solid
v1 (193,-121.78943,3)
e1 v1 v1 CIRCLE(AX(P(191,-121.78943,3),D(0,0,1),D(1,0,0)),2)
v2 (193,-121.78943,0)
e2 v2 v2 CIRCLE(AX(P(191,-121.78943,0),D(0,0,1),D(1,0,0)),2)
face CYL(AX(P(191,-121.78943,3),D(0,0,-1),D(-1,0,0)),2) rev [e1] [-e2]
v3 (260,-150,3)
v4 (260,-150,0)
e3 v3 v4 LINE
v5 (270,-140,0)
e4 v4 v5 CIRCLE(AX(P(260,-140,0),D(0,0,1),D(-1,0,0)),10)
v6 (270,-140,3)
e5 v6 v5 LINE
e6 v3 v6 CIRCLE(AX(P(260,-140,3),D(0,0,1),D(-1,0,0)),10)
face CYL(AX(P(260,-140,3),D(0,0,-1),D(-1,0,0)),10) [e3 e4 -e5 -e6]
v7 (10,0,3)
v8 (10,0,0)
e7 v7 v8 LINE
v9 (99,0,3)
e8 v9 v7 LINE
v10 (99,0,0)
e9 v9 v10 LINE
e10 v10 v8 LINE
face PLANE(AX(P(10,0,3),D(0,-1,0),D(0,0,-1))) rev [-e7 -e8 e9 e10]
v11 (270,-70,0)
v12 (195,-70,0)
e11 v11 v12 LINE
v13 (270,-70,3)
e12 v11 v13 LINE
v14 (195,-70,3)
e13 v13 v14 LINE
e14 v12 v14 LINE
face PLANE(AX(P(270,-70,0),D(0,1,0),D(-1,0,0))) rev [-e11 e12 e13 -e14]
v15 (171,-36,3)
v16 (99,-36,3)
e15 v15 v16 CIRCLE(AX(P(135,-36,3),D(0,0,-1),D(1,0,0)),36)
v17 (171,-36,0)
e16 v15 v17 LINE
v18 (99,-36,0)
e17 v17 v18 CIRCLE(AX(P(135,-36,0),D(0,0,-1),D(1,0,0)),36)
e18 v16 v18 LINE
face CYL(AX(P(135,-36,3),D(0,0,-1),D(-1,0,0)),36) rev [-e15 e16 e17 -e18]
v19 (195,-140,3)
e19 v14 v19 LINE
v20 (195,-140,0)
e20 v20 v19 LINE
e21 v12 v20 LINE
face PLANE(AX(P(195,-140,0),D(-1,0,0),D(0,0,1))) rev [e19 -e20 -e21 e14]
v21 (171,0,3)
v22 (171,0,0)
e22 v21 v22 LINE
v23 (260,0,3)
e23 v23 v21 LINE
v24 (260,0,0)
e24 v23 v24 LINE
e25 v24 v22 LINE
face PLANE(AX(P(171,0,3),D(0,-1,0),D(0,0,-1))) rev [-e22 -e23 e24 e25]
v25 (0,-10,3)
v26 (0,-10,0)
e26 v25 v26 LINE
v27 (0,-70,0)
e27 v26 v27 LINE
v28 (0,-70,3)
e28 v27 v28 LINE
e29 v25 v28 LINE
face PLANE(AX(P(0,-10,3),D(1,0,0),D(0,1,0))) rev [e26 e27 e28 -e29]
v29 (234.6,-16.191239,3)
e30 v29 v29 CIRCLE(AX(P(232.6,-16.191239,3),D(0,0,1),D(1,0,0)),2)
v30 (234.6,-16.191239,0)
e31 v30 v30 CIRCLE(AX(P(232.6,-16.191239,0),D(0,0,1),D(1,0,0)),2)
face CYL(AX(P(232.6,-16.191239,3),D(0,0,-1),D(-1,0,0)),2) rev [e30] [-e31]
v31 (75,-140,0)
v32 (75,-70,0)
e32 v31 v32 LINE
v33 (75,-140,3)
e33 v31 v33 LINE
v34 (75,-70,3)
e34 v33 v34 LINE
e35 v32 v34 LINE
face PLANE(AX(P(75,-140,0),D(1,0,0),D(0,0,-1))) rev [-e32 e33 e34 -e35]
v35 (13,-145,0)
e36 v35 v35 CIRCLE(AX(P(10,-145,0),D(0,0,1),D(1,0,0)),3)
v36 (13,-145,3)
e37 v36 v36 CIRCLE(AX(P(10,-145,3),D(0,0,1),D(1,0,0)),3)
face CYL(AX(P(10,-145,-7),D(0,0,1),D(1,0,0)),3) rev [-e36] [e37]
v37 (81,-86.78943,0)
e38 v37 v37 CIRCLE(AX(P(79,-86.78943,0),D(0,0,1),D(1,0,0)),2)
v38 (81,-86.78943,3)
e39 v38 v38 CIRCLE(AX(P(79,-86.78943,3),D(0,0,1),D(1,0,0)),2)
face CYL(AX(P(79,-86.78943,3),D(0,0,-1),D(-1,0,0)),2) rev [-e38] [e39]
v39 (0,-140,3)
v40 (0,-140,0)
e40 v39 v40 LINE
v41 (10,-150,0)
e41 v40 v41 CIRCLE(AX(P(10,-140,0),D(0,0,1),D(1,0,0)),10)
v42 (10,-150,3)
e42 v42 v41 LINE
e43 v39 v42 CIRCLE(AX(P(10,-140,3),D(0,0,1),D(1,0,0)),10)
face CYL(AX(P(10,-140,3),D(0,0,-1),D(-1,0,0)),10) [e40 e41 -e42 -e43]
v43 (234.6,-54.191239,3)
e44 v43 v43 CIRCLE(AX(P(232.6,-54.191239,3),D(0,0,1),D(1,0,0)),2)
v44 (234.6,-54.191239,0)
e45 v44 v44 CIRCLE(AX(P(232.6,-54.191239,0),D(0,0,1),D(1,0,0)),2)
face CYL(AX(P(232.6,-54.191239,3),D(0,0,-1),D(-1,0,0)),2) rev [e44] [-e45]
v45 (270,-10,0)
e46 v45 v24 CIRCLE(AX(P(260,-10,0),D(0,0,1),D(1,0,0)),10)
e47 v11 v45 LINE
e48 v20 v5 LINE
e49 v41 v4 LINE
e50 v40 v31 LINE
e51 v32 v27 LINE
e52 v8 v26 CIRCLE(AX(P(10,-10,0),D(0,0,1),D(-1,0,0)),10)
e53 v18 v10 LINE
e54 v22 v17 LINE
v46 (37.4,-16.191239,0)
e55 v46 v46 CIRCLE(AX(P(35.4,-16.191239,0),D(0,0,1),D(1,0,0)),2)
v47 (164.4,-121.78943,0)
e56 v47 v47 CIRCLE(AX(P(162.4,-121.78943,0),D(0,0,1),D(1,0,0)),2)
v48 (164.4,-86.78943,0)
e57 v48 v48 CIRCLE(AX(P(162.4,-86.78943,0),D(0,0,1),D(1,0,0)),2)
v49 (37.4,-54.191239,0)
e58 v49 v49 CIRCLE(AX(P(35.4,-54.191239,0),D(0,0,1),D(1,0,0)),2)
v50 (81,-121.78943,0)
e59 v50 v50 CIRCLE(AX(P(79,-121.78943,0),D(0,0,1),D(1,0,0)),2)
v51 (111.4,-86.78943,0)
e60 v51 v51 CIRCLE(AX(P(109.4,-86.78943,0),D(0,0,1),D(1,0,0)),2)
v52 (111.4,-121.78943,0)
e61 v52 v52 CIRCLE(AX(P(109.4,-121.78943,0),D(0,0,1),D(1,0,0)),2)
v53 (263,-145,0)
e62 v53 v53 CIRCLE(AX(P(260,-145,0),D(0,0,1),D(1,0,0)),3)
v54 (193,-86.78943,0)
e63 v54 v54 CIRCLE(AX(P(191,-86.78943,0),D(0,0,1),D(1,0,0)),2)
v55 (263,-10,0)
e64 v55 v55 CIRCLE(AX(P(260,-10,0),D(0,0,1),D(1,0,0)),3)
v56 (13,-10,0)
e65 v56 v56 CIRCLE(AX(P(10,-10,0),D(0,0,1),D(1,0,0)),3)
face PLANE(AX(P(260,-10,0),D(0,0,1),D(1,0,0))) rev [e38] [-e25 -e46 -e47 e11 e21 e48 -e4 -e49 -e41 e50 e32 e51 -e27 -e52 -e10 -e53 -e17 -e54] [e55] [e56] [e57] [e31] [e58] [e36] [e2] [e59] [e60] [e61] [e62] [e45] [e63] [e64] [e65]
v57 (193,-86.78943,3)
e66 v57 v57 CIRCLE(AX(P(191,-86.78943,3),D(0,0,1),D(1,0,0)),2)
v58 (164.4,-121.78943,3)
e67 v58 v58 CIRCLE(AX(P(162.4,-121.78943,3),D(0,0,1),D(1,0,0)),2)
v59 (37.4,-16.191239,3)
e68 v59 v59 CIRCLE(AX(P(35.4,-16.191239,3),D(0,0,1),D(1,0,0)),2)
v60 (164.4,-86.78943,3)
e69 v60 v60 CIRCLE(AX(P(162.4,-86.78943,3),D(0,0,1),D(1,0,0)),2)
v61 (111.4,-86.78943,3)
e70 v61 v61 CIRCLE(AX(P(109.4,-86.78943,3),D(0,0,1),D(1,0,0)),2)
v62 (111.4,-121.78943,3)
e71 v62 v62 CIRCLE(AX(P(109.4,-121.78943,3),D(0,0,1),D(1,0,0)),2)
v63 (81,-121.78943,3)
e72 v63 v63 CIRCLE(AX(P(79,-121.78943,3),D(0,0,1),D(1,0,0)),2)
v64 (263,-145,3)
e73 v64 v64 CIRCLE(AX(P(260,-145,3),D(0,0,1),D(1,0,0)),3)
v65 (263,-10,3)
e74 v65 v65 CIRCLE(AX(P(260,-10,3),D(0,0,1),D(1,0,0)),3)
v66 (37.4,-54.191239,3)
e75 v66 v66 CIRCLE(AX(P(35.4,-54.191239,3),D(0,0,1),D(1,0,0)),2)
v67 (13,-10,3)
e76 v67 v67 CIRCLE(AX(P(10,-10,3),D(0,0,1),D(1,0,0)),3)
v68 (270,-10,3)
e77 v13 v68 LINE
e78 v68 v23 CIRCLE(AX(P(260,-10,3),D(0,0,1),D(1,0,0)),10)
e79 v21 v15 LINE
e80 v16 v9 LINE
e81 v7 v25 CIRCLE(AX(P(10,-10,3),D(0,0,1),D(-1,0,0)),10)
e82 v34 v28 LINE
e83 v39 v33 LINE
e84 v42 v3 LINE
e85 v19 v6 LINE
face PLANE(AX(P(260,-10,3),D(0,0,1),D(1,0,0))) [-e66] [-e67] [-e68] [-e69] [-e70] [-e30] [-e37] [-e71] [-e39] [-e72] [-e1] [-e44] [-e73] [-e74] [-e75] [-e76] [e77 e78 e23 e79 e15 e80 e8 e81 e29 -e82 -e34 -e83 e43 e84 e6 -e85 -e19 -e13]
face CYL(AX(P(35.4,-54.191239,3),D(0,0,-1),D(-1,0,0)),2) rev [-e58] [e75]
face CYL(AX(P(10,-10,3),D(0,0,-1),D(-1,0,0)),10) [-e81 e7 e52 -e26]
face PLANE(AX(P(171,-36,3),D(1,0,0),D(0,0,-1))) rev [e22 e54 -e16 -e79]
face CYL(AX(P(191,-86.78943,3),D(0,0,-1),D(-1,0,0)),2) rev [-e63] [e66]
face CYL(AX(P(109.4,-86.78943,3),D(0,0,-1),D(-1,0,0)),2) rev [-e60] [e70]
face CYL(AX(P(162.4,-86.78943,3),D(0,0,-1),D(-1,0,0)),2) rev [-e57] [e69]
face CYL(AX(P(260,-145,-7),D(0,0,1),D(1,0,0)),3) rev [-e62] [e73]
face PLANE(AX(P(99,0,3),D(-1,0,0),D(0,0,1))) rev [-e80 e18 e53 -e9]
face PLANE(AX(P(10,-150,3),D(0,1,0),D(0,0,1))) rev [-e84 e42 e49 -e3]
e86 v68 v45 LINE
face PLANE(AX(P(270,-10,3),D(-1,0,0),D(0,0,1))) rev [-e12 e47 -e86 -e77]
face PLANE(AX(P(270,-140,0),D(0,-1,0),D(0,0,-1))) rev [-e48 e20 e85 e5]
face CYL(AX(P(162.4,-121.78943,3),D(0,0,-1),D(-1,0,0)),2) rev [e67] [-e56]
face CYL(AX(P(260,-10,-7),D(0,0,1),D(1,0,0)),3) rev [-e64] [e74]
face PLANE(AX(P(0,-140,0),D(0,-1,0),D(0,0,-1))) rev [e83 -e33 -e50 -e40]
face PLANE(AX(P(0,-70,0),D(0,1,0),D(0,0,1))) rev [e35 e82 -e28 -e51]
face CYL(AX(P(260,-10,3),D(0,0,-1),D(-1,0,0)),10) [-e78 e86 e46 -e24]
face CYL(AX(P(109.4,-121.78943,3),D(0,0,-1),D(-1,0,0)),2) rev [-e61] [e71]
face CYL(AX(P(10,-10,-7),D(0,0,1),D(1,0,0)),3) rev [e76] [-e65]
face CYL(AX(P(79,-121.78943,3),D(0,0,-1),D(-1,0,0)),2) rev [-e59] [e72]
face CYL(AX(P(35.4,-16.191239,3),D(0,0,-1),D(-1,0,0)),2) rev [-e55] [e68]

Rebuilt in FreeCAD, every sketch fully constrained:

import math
import FreeCAD as App
import Part
import Sketcher
from FreeCAD import Vector


def add_polygon(sketch, points):
    """Adds a closed chain of lines whose ends are joined by coincident constraints."""
    first, n = sketch.GeometryCount, len(points)
    for a, b in zip(points, points[1:] + points[:1]):
        sketch.addGeometry(Part.LineSegment(App.Vector(*a, 0), App.Vector(*b, 0)), False)
    for i in range(n):
        sketch.addConstraint(Sketcher.Constraint("Coincident", first + i, 2, first + (i + 1) % n, 1))

doc = App.newDocument("Part")
params = doc.addObject("Spreadsheet::Sheet", "Params")
for row, (alias, value) in enumerate([
    ("sketch1_diameter", "4 mm"),
    ("sketch1_radius", "10 mm"),
    ("sketch1_radius2", "36 mm"),
    ("sketch1_width", "89 mm"),
    ("sketch1_height", "130 mm"),
    ("pad1_length", "3 mm"),
    ("sketch2_width", "75 mm"),
    ("sketch2_height", "70 mm"),
    ("pocket1_length", "3 mm"),
    ("sketch3_diameter", "6 mm"),
    ("pocket2_length", "10 mm"),
], start=1):
    params.set(f"A{row}", alias)
    params.set(f"B{row}", "=" + value)
    params.setAlias(f"B{row}", alias)

body = doc.addObject("PartDesign::Body", "Body")

sketch1 = body.newObject("Sketcher::SketchObject", "Sketch")
sketch1.AttachmentSupport = (doc.getObject("XY_Plane"), [""])
sketch1.MapMode = "FlatFace"
sketch1.addGeometry([
    Part.LineSegment(Vector(99, 0, 0), Vector(10, 0, 0)),
    Part.ArcOfCircle(Part.Circle(Vector(10, -10, 0), Vector(0, 0, 1), 10), math.radians(90), math.radians(180)),
    Part.LineSegment(Vector(0, -10, 0), Vector(0, -140, 0)),
    Part.ArcOfCircle(Part.Circle(Vector(10, -140, 0), Vector(0, 0, 1), 10), math.radians(180), math.radians(270)),
    Part.LineSegment(Vector(10, -150, 0), Vector(260, -150, 0)),
    Part.ArcOfCircle(Part.Circle(Vector(260, -140, 0), Vector(0, 0, 1), 10), math.radians(-90), math.radians(0)),
    Part.LineSegment(Vector(270, -140, 0), Vector(270, -10, 0)),
    Part.ArcOfCircle(Part.Circle(Vector(260, -10, 0), Vector(0, 0, 1), 10), math.radians(0), math.radians(90)),
    Part.LineSegment(Vector(260, 0, 0), Vector(171, 0, 0)),
    Part.LineSegment(Vector(171, 0, 0), Vector(171, -36, 0)),
    Part.ArcOfCircle(Part.Circle(Vector(135, -36, 0), Vector(0, 0, 1), 36), math.radians(180), math.radians(360)),
    Part.LineSegment(Vector(99, -36, 0), Vector(99, 0, 0)),
    Part.Circle(Vector(191, -121.8, 0), Vector(0, 0, 1), 2),
    Part.Circle(Vector(162.4, -121.8, 0), Vector(0, 0, 1), 2),
    Part.Circle(Vector(191, -86.8, 0), Vector(0, 0, 1), 2),
    Part.Circle(Vector(162.4, -86.8, 0), Vector(0, 0, 1), 2),
    Part.Circle(Vector(109.4, -121.8, 0), Vector(0, 0, 1), 2),
    Part.Circle(Vector(79, -121.8, 0), Vector(0, 0, 1), 2),
    Part.Circle(Vector(109.4, -86.8, 0), Vector(0, 0, 1), 2),
    Part.Circle(Vector(79, -86.8, 0), Vector(0, 0, 1), 2),
    Part.Circle(Vector(232.6, -54.2, 0), Vector(0, 0, 1), 2),
    Part.Circle(Vector(232.6, -16.2, 0), Vector(0, 0, 1), 2),
    Part.Circle(Vector(35.4, -54.2, 0), Vector(0, 0, 1), 2),
    Part.Circle(Vector(35.4, -16.2, 0), Vector(0, 0, 1), 2),
], False)
sketch1.addConstraint([
    Sketcher.Constraint("Tangent", 0, 2, 1, 1),
    Sketcher.Constraint("Tangent", 1, 2, 2, 1),
    Sketcher.Constraint("Tangent", 2, 2, 3, 1),
    Sketcher.Constraint("Tangent", 3, 2, 4, 1),
    Sketcher.Constraint("Tangent", 4, 2, 5, 1),
    Sketcher.Constraint("Tangent", 5, 2, 6, 1),
    Sketcher.Constraint("Tangent", 6, 2, 7, 1),
    Sketcher.Constraint("Tangent", 7, 2, 8, 1),
    Sketcher.Constraint("Coincident", 8, 2, 9, 1),
    Sketcher.Constraint("Tangent", 9, 2, 10, 2),
    Sketcher.Constraint("Tangent", 10, 1, 11, 1),
    Sketcher.Constraint("Coincident", 11, 2, 0, 1),
    Sketcher.Constraint("Horizontal", 0),
    Sketcher.Constraint("Vertical", 2),
    Sketcher.Constraint("Horizontal", 4),
    Sketcher.Constraint("Vertical", 6),
    Sketcher.Constraint("Horizontal", 8),
    Sketcher.Constraint("Vertical", 9),
    Sketcher.Constraint("Vertical", 11),
    Sketcher.Constraint("Equal", 1, 3),
    Sketcher.Constraint("Equal", 3, 5),
    Sketcher.Constraint("Equal", 5, 7),
    Sketcher.Constraint("Equal", 12, 13),
    Sketcher.Constraint("Equal", 13, 14),
    Sketcher.Constraint("Equal", 14, 15),
    Sketcher.Constraint("Equal", 15, 16),
    Sketcher.Constraint("Equal", 16, 17),
    Sketcher.Constraint("Equal", 17, 18),
    Sketcher.Constraint("Equal", 18, 19),
    Sketcher.Constraint("Equal", 19, 20),
    Sketcher.Constraint("Equal", 20, 21),
    Sketcher.Constraint("Equal", 21, 22),
    Sketcher.Constraint("Equal", 22, 23),
    Sketcher.Constraint("PointOnObject", 0, 2, -1),
    Sketcher.Constraint("PointOnObject", 1, 2, -2),
    Sketcher.Constraint("PointOnObject", 7, 2, -1),
    Sketcher.Constraint("Horizontal", 12, 3, 13, 3),
    Sketcher.Constraint("Horizontal", 14, 3, 15, 3),
    Sketcher.Constraint("Horizontal", 13, 3, 16, 3),
    Sketcher.Constraint("Horizontal", 16, 3, 17, 3),
    Sketcher.Constraint("Horizontal", 15, 3, 18, 3),
    Sketcher.Constraint("Horizontal", 18, 3, 19, 3),
    Sketcher.Constraint("Horizontal", 20, 3, 22, 3),
    Sketcher.Constraint("Horizontal", 21, 3, 23, 3),
    Sketcher.Constraint("Vertical", 12, 3, 14, 3),
    Sketcher.Constraint("Vertical", 13, 3, 15, 3),
    Sketcher.Constraint("Vertical", 16, 3, 18, 3),
    Sketcher.Constraint("Vertical", 17, 3, 19, 3),
    Sketcher.Constraint("Vertical", 20, 3, 21, 3),
    Sketcher.Constraint("Vertical", 22, 3, 23, 3),
    Sketcher.Constraint("Equal", 0, 8),
    Sketcher.Constraint("Diameter", 12, 4.0),
    Sketcher.Constraint("Radius", 1, 10.0),
    Sketcher.Constraint("Radius", 10, 36.0),
    Sketcher.Constraint("DistanceX", 0, 2, 0, 1, 89.0),
    Sketcher.Constraint("DistanceY", 2, 2, 2, 1, 130.0),
    Sketcher.Constraint("DistanceY", 9, 2, 9, 1, 36.0),
    Sketcher.Constraint("DistanceX", -1, 1, 12, 3, 191.0),
    Sketcher.Constraint("DistanceX", -1, 1, 17, 3, 79.0),
    Sketcher.Constraint("DistanceY", 12, 3, 14, 3, 35.0),
    Sketcher.Constraint("DistanceX", 16, 3, 13, 3, 53.0),
    Sketcher.Constraint("DistanceY", 20, 3, 21, 3, 38.0),
    Sketcher.Constraint("DistanceX", 22, 3, 18, 3, 74.0),
    Sketcher.Constraint("DistanceX", -1, 1, 13, 3, 162.4),
    Sketcher.Constraint("DistanceX", -1, 1, 20, 3, 232.6),
    Sketcher.Constraint("DistanceY", 12, 3, -1, 1, 121.78943),
    Sketcher.Constraint("DistanceY", 20, 3, -1, 1, 54.191239),
])
sketch1.setExpression("Constraints[51]", "Params.sketch1_diameter")
sketch1.setExpression("Constraints[52]", "Params.sketch1_radius")
sketch1.setExpression("Constraints[53]", "Params.sketch1_radius2")
sketch1.setExpression("Constraints[54]", "Params.sketch1_width")
sketch1.setExpression("Constraints[55]", "Params.sketch1_height")
pad1 = body.newObject("PartDesign::Pad", "Pad")
pad1.Profile = sketch1
pad1.setExpression("Length", "Params.pad1_length")

sketch2 = body.newObject("Sketcher::SketchObject", "Sketch001")
sketch2.AttachmentSupport = (doc.getObject("XY_Plane"), [""])
sketch2.MapMode = "FlatFace"
sketch2.AttachmentOffset = App.Placement(Vector(0, 0, 3), App.Rotation())
add_polygon(sketch2, [(0, -70), (0, -140), (75, -140), (75, -70)])
add_polygon(sketch2, [(195, -70), (195, -140), (270, -140), (270, -70)])
sketch2.addConstraint([
    Sketcher.Constraint("Vertical", 0),
    Sketcher.Constraint("Horizontal", 1),
    Sketcher.Constraint("Vertical", 2),
    Sketcher.Constraint("Horizontal", 3),
    Sketcher.Constraint("Vertical", 4),
    Sketcher.Constraint("Horizontal", 5),
    Sketcher.Constraint("Vertical", 6),
    Sketcher.Constraint("Horizontal", 7),
    Sketcher.Constraint("PointOnObject", 0, 2, -2),
    Sketcher.Constraint("Horizontal", 1, 2, 4, 2),
    Sketcher.Constraint("Horizontal", 3, 2, 6, 2),
    Sketcher.Constraint("Equal", 3, 5),
    Sketcher.Constraint("DistanceX", 1, 1, 1, 2, 75.0),
    Sketcher.Constraint("DistanceY", 0, 2, 0, 1, 70.0),
    Sketcher.Constraint("DistanceY", 0, 2, -1, 1, 140.0),
    Sketcher.Constraint("DistanceX", -1, 1, 4, 2, 195.0),
])
sketch2.setExpression("Constraints[20]", "Params.sketch2_width")
sketch2.setExpression("Constraints[21]", "Params.sketch2_height")
pocket1 = body.newObject("PartDesign::Pocket", "Pocket")
pocket1.Profile = sketch2
pocket1.setExpression("Length", "Params.pocket1_length")

sketch3 = body.newObject("Sketcher::SketchObject", "Sketch002")
sketch3.AttachmentSupport = (doc.getObject("XY_Plane"), [""])
sketch3.MapMode = "FlatFace"
sketch3.AttachmentOffset = App.Placement(Vector(0, 0, 3), App.Rotation())
sketch3.addGeometry([
    Part.Circle(Vector(10, -10, 0), Vector(0, 0, 1), 3),
    Part.Circle(Vector(260, -10, 0), Vector(0, 0, 1), 3),
    Part.Circle(Vector(260, -145, 0), Vector(0, 0, 1), 3),
    Part.Circle(Vector(10, -145, 0), Vector(0, 0, 1), 3),
], False)
sketch3.addConstraint([
    Sketcher.Constraint("Equal", 0, 1),
    Sketcher.Constraint("Equal", 1, 2),
    Sketcher.Constraint("Equal", 2, 3),
    Sketcher.Constraint("Horizontal", 0, 3, 1, 3),
    Sketcher.Constraint("Horizontal", 2, 3, 3, 3),
    Sketcher.Constraint("Vertical", 1, 3, 2, 3),
    Sketcher.Constraint("Vertical", 0, 3, 3, 3),
    Sketcher.Constraint("Diameter", 0, 6.0),
    Sketcher.Constraint("DistanceX", -1, 1, 0, 3, 10.0),
    Sketcher.Constraint("DistanceY", 0, 3, -1, 1, 10.0),
    Sketcher.Constraint("DistanceX", -1, 1, 1, 3, 260.0),
    Sketcher.Constraint("DistanceY", 2, 3, -1, 1, 145.0),
])
sketch3.setExpression("Constraints[7]", "Params.sketch3_diameter")
pocket2 = body.newObject("PartDesign::Pocket", "Pocket001")
pocket2.Profile = sketch3
pocket2.setExpression("Length", "Params.pocket2_length")

doc.recompute()
